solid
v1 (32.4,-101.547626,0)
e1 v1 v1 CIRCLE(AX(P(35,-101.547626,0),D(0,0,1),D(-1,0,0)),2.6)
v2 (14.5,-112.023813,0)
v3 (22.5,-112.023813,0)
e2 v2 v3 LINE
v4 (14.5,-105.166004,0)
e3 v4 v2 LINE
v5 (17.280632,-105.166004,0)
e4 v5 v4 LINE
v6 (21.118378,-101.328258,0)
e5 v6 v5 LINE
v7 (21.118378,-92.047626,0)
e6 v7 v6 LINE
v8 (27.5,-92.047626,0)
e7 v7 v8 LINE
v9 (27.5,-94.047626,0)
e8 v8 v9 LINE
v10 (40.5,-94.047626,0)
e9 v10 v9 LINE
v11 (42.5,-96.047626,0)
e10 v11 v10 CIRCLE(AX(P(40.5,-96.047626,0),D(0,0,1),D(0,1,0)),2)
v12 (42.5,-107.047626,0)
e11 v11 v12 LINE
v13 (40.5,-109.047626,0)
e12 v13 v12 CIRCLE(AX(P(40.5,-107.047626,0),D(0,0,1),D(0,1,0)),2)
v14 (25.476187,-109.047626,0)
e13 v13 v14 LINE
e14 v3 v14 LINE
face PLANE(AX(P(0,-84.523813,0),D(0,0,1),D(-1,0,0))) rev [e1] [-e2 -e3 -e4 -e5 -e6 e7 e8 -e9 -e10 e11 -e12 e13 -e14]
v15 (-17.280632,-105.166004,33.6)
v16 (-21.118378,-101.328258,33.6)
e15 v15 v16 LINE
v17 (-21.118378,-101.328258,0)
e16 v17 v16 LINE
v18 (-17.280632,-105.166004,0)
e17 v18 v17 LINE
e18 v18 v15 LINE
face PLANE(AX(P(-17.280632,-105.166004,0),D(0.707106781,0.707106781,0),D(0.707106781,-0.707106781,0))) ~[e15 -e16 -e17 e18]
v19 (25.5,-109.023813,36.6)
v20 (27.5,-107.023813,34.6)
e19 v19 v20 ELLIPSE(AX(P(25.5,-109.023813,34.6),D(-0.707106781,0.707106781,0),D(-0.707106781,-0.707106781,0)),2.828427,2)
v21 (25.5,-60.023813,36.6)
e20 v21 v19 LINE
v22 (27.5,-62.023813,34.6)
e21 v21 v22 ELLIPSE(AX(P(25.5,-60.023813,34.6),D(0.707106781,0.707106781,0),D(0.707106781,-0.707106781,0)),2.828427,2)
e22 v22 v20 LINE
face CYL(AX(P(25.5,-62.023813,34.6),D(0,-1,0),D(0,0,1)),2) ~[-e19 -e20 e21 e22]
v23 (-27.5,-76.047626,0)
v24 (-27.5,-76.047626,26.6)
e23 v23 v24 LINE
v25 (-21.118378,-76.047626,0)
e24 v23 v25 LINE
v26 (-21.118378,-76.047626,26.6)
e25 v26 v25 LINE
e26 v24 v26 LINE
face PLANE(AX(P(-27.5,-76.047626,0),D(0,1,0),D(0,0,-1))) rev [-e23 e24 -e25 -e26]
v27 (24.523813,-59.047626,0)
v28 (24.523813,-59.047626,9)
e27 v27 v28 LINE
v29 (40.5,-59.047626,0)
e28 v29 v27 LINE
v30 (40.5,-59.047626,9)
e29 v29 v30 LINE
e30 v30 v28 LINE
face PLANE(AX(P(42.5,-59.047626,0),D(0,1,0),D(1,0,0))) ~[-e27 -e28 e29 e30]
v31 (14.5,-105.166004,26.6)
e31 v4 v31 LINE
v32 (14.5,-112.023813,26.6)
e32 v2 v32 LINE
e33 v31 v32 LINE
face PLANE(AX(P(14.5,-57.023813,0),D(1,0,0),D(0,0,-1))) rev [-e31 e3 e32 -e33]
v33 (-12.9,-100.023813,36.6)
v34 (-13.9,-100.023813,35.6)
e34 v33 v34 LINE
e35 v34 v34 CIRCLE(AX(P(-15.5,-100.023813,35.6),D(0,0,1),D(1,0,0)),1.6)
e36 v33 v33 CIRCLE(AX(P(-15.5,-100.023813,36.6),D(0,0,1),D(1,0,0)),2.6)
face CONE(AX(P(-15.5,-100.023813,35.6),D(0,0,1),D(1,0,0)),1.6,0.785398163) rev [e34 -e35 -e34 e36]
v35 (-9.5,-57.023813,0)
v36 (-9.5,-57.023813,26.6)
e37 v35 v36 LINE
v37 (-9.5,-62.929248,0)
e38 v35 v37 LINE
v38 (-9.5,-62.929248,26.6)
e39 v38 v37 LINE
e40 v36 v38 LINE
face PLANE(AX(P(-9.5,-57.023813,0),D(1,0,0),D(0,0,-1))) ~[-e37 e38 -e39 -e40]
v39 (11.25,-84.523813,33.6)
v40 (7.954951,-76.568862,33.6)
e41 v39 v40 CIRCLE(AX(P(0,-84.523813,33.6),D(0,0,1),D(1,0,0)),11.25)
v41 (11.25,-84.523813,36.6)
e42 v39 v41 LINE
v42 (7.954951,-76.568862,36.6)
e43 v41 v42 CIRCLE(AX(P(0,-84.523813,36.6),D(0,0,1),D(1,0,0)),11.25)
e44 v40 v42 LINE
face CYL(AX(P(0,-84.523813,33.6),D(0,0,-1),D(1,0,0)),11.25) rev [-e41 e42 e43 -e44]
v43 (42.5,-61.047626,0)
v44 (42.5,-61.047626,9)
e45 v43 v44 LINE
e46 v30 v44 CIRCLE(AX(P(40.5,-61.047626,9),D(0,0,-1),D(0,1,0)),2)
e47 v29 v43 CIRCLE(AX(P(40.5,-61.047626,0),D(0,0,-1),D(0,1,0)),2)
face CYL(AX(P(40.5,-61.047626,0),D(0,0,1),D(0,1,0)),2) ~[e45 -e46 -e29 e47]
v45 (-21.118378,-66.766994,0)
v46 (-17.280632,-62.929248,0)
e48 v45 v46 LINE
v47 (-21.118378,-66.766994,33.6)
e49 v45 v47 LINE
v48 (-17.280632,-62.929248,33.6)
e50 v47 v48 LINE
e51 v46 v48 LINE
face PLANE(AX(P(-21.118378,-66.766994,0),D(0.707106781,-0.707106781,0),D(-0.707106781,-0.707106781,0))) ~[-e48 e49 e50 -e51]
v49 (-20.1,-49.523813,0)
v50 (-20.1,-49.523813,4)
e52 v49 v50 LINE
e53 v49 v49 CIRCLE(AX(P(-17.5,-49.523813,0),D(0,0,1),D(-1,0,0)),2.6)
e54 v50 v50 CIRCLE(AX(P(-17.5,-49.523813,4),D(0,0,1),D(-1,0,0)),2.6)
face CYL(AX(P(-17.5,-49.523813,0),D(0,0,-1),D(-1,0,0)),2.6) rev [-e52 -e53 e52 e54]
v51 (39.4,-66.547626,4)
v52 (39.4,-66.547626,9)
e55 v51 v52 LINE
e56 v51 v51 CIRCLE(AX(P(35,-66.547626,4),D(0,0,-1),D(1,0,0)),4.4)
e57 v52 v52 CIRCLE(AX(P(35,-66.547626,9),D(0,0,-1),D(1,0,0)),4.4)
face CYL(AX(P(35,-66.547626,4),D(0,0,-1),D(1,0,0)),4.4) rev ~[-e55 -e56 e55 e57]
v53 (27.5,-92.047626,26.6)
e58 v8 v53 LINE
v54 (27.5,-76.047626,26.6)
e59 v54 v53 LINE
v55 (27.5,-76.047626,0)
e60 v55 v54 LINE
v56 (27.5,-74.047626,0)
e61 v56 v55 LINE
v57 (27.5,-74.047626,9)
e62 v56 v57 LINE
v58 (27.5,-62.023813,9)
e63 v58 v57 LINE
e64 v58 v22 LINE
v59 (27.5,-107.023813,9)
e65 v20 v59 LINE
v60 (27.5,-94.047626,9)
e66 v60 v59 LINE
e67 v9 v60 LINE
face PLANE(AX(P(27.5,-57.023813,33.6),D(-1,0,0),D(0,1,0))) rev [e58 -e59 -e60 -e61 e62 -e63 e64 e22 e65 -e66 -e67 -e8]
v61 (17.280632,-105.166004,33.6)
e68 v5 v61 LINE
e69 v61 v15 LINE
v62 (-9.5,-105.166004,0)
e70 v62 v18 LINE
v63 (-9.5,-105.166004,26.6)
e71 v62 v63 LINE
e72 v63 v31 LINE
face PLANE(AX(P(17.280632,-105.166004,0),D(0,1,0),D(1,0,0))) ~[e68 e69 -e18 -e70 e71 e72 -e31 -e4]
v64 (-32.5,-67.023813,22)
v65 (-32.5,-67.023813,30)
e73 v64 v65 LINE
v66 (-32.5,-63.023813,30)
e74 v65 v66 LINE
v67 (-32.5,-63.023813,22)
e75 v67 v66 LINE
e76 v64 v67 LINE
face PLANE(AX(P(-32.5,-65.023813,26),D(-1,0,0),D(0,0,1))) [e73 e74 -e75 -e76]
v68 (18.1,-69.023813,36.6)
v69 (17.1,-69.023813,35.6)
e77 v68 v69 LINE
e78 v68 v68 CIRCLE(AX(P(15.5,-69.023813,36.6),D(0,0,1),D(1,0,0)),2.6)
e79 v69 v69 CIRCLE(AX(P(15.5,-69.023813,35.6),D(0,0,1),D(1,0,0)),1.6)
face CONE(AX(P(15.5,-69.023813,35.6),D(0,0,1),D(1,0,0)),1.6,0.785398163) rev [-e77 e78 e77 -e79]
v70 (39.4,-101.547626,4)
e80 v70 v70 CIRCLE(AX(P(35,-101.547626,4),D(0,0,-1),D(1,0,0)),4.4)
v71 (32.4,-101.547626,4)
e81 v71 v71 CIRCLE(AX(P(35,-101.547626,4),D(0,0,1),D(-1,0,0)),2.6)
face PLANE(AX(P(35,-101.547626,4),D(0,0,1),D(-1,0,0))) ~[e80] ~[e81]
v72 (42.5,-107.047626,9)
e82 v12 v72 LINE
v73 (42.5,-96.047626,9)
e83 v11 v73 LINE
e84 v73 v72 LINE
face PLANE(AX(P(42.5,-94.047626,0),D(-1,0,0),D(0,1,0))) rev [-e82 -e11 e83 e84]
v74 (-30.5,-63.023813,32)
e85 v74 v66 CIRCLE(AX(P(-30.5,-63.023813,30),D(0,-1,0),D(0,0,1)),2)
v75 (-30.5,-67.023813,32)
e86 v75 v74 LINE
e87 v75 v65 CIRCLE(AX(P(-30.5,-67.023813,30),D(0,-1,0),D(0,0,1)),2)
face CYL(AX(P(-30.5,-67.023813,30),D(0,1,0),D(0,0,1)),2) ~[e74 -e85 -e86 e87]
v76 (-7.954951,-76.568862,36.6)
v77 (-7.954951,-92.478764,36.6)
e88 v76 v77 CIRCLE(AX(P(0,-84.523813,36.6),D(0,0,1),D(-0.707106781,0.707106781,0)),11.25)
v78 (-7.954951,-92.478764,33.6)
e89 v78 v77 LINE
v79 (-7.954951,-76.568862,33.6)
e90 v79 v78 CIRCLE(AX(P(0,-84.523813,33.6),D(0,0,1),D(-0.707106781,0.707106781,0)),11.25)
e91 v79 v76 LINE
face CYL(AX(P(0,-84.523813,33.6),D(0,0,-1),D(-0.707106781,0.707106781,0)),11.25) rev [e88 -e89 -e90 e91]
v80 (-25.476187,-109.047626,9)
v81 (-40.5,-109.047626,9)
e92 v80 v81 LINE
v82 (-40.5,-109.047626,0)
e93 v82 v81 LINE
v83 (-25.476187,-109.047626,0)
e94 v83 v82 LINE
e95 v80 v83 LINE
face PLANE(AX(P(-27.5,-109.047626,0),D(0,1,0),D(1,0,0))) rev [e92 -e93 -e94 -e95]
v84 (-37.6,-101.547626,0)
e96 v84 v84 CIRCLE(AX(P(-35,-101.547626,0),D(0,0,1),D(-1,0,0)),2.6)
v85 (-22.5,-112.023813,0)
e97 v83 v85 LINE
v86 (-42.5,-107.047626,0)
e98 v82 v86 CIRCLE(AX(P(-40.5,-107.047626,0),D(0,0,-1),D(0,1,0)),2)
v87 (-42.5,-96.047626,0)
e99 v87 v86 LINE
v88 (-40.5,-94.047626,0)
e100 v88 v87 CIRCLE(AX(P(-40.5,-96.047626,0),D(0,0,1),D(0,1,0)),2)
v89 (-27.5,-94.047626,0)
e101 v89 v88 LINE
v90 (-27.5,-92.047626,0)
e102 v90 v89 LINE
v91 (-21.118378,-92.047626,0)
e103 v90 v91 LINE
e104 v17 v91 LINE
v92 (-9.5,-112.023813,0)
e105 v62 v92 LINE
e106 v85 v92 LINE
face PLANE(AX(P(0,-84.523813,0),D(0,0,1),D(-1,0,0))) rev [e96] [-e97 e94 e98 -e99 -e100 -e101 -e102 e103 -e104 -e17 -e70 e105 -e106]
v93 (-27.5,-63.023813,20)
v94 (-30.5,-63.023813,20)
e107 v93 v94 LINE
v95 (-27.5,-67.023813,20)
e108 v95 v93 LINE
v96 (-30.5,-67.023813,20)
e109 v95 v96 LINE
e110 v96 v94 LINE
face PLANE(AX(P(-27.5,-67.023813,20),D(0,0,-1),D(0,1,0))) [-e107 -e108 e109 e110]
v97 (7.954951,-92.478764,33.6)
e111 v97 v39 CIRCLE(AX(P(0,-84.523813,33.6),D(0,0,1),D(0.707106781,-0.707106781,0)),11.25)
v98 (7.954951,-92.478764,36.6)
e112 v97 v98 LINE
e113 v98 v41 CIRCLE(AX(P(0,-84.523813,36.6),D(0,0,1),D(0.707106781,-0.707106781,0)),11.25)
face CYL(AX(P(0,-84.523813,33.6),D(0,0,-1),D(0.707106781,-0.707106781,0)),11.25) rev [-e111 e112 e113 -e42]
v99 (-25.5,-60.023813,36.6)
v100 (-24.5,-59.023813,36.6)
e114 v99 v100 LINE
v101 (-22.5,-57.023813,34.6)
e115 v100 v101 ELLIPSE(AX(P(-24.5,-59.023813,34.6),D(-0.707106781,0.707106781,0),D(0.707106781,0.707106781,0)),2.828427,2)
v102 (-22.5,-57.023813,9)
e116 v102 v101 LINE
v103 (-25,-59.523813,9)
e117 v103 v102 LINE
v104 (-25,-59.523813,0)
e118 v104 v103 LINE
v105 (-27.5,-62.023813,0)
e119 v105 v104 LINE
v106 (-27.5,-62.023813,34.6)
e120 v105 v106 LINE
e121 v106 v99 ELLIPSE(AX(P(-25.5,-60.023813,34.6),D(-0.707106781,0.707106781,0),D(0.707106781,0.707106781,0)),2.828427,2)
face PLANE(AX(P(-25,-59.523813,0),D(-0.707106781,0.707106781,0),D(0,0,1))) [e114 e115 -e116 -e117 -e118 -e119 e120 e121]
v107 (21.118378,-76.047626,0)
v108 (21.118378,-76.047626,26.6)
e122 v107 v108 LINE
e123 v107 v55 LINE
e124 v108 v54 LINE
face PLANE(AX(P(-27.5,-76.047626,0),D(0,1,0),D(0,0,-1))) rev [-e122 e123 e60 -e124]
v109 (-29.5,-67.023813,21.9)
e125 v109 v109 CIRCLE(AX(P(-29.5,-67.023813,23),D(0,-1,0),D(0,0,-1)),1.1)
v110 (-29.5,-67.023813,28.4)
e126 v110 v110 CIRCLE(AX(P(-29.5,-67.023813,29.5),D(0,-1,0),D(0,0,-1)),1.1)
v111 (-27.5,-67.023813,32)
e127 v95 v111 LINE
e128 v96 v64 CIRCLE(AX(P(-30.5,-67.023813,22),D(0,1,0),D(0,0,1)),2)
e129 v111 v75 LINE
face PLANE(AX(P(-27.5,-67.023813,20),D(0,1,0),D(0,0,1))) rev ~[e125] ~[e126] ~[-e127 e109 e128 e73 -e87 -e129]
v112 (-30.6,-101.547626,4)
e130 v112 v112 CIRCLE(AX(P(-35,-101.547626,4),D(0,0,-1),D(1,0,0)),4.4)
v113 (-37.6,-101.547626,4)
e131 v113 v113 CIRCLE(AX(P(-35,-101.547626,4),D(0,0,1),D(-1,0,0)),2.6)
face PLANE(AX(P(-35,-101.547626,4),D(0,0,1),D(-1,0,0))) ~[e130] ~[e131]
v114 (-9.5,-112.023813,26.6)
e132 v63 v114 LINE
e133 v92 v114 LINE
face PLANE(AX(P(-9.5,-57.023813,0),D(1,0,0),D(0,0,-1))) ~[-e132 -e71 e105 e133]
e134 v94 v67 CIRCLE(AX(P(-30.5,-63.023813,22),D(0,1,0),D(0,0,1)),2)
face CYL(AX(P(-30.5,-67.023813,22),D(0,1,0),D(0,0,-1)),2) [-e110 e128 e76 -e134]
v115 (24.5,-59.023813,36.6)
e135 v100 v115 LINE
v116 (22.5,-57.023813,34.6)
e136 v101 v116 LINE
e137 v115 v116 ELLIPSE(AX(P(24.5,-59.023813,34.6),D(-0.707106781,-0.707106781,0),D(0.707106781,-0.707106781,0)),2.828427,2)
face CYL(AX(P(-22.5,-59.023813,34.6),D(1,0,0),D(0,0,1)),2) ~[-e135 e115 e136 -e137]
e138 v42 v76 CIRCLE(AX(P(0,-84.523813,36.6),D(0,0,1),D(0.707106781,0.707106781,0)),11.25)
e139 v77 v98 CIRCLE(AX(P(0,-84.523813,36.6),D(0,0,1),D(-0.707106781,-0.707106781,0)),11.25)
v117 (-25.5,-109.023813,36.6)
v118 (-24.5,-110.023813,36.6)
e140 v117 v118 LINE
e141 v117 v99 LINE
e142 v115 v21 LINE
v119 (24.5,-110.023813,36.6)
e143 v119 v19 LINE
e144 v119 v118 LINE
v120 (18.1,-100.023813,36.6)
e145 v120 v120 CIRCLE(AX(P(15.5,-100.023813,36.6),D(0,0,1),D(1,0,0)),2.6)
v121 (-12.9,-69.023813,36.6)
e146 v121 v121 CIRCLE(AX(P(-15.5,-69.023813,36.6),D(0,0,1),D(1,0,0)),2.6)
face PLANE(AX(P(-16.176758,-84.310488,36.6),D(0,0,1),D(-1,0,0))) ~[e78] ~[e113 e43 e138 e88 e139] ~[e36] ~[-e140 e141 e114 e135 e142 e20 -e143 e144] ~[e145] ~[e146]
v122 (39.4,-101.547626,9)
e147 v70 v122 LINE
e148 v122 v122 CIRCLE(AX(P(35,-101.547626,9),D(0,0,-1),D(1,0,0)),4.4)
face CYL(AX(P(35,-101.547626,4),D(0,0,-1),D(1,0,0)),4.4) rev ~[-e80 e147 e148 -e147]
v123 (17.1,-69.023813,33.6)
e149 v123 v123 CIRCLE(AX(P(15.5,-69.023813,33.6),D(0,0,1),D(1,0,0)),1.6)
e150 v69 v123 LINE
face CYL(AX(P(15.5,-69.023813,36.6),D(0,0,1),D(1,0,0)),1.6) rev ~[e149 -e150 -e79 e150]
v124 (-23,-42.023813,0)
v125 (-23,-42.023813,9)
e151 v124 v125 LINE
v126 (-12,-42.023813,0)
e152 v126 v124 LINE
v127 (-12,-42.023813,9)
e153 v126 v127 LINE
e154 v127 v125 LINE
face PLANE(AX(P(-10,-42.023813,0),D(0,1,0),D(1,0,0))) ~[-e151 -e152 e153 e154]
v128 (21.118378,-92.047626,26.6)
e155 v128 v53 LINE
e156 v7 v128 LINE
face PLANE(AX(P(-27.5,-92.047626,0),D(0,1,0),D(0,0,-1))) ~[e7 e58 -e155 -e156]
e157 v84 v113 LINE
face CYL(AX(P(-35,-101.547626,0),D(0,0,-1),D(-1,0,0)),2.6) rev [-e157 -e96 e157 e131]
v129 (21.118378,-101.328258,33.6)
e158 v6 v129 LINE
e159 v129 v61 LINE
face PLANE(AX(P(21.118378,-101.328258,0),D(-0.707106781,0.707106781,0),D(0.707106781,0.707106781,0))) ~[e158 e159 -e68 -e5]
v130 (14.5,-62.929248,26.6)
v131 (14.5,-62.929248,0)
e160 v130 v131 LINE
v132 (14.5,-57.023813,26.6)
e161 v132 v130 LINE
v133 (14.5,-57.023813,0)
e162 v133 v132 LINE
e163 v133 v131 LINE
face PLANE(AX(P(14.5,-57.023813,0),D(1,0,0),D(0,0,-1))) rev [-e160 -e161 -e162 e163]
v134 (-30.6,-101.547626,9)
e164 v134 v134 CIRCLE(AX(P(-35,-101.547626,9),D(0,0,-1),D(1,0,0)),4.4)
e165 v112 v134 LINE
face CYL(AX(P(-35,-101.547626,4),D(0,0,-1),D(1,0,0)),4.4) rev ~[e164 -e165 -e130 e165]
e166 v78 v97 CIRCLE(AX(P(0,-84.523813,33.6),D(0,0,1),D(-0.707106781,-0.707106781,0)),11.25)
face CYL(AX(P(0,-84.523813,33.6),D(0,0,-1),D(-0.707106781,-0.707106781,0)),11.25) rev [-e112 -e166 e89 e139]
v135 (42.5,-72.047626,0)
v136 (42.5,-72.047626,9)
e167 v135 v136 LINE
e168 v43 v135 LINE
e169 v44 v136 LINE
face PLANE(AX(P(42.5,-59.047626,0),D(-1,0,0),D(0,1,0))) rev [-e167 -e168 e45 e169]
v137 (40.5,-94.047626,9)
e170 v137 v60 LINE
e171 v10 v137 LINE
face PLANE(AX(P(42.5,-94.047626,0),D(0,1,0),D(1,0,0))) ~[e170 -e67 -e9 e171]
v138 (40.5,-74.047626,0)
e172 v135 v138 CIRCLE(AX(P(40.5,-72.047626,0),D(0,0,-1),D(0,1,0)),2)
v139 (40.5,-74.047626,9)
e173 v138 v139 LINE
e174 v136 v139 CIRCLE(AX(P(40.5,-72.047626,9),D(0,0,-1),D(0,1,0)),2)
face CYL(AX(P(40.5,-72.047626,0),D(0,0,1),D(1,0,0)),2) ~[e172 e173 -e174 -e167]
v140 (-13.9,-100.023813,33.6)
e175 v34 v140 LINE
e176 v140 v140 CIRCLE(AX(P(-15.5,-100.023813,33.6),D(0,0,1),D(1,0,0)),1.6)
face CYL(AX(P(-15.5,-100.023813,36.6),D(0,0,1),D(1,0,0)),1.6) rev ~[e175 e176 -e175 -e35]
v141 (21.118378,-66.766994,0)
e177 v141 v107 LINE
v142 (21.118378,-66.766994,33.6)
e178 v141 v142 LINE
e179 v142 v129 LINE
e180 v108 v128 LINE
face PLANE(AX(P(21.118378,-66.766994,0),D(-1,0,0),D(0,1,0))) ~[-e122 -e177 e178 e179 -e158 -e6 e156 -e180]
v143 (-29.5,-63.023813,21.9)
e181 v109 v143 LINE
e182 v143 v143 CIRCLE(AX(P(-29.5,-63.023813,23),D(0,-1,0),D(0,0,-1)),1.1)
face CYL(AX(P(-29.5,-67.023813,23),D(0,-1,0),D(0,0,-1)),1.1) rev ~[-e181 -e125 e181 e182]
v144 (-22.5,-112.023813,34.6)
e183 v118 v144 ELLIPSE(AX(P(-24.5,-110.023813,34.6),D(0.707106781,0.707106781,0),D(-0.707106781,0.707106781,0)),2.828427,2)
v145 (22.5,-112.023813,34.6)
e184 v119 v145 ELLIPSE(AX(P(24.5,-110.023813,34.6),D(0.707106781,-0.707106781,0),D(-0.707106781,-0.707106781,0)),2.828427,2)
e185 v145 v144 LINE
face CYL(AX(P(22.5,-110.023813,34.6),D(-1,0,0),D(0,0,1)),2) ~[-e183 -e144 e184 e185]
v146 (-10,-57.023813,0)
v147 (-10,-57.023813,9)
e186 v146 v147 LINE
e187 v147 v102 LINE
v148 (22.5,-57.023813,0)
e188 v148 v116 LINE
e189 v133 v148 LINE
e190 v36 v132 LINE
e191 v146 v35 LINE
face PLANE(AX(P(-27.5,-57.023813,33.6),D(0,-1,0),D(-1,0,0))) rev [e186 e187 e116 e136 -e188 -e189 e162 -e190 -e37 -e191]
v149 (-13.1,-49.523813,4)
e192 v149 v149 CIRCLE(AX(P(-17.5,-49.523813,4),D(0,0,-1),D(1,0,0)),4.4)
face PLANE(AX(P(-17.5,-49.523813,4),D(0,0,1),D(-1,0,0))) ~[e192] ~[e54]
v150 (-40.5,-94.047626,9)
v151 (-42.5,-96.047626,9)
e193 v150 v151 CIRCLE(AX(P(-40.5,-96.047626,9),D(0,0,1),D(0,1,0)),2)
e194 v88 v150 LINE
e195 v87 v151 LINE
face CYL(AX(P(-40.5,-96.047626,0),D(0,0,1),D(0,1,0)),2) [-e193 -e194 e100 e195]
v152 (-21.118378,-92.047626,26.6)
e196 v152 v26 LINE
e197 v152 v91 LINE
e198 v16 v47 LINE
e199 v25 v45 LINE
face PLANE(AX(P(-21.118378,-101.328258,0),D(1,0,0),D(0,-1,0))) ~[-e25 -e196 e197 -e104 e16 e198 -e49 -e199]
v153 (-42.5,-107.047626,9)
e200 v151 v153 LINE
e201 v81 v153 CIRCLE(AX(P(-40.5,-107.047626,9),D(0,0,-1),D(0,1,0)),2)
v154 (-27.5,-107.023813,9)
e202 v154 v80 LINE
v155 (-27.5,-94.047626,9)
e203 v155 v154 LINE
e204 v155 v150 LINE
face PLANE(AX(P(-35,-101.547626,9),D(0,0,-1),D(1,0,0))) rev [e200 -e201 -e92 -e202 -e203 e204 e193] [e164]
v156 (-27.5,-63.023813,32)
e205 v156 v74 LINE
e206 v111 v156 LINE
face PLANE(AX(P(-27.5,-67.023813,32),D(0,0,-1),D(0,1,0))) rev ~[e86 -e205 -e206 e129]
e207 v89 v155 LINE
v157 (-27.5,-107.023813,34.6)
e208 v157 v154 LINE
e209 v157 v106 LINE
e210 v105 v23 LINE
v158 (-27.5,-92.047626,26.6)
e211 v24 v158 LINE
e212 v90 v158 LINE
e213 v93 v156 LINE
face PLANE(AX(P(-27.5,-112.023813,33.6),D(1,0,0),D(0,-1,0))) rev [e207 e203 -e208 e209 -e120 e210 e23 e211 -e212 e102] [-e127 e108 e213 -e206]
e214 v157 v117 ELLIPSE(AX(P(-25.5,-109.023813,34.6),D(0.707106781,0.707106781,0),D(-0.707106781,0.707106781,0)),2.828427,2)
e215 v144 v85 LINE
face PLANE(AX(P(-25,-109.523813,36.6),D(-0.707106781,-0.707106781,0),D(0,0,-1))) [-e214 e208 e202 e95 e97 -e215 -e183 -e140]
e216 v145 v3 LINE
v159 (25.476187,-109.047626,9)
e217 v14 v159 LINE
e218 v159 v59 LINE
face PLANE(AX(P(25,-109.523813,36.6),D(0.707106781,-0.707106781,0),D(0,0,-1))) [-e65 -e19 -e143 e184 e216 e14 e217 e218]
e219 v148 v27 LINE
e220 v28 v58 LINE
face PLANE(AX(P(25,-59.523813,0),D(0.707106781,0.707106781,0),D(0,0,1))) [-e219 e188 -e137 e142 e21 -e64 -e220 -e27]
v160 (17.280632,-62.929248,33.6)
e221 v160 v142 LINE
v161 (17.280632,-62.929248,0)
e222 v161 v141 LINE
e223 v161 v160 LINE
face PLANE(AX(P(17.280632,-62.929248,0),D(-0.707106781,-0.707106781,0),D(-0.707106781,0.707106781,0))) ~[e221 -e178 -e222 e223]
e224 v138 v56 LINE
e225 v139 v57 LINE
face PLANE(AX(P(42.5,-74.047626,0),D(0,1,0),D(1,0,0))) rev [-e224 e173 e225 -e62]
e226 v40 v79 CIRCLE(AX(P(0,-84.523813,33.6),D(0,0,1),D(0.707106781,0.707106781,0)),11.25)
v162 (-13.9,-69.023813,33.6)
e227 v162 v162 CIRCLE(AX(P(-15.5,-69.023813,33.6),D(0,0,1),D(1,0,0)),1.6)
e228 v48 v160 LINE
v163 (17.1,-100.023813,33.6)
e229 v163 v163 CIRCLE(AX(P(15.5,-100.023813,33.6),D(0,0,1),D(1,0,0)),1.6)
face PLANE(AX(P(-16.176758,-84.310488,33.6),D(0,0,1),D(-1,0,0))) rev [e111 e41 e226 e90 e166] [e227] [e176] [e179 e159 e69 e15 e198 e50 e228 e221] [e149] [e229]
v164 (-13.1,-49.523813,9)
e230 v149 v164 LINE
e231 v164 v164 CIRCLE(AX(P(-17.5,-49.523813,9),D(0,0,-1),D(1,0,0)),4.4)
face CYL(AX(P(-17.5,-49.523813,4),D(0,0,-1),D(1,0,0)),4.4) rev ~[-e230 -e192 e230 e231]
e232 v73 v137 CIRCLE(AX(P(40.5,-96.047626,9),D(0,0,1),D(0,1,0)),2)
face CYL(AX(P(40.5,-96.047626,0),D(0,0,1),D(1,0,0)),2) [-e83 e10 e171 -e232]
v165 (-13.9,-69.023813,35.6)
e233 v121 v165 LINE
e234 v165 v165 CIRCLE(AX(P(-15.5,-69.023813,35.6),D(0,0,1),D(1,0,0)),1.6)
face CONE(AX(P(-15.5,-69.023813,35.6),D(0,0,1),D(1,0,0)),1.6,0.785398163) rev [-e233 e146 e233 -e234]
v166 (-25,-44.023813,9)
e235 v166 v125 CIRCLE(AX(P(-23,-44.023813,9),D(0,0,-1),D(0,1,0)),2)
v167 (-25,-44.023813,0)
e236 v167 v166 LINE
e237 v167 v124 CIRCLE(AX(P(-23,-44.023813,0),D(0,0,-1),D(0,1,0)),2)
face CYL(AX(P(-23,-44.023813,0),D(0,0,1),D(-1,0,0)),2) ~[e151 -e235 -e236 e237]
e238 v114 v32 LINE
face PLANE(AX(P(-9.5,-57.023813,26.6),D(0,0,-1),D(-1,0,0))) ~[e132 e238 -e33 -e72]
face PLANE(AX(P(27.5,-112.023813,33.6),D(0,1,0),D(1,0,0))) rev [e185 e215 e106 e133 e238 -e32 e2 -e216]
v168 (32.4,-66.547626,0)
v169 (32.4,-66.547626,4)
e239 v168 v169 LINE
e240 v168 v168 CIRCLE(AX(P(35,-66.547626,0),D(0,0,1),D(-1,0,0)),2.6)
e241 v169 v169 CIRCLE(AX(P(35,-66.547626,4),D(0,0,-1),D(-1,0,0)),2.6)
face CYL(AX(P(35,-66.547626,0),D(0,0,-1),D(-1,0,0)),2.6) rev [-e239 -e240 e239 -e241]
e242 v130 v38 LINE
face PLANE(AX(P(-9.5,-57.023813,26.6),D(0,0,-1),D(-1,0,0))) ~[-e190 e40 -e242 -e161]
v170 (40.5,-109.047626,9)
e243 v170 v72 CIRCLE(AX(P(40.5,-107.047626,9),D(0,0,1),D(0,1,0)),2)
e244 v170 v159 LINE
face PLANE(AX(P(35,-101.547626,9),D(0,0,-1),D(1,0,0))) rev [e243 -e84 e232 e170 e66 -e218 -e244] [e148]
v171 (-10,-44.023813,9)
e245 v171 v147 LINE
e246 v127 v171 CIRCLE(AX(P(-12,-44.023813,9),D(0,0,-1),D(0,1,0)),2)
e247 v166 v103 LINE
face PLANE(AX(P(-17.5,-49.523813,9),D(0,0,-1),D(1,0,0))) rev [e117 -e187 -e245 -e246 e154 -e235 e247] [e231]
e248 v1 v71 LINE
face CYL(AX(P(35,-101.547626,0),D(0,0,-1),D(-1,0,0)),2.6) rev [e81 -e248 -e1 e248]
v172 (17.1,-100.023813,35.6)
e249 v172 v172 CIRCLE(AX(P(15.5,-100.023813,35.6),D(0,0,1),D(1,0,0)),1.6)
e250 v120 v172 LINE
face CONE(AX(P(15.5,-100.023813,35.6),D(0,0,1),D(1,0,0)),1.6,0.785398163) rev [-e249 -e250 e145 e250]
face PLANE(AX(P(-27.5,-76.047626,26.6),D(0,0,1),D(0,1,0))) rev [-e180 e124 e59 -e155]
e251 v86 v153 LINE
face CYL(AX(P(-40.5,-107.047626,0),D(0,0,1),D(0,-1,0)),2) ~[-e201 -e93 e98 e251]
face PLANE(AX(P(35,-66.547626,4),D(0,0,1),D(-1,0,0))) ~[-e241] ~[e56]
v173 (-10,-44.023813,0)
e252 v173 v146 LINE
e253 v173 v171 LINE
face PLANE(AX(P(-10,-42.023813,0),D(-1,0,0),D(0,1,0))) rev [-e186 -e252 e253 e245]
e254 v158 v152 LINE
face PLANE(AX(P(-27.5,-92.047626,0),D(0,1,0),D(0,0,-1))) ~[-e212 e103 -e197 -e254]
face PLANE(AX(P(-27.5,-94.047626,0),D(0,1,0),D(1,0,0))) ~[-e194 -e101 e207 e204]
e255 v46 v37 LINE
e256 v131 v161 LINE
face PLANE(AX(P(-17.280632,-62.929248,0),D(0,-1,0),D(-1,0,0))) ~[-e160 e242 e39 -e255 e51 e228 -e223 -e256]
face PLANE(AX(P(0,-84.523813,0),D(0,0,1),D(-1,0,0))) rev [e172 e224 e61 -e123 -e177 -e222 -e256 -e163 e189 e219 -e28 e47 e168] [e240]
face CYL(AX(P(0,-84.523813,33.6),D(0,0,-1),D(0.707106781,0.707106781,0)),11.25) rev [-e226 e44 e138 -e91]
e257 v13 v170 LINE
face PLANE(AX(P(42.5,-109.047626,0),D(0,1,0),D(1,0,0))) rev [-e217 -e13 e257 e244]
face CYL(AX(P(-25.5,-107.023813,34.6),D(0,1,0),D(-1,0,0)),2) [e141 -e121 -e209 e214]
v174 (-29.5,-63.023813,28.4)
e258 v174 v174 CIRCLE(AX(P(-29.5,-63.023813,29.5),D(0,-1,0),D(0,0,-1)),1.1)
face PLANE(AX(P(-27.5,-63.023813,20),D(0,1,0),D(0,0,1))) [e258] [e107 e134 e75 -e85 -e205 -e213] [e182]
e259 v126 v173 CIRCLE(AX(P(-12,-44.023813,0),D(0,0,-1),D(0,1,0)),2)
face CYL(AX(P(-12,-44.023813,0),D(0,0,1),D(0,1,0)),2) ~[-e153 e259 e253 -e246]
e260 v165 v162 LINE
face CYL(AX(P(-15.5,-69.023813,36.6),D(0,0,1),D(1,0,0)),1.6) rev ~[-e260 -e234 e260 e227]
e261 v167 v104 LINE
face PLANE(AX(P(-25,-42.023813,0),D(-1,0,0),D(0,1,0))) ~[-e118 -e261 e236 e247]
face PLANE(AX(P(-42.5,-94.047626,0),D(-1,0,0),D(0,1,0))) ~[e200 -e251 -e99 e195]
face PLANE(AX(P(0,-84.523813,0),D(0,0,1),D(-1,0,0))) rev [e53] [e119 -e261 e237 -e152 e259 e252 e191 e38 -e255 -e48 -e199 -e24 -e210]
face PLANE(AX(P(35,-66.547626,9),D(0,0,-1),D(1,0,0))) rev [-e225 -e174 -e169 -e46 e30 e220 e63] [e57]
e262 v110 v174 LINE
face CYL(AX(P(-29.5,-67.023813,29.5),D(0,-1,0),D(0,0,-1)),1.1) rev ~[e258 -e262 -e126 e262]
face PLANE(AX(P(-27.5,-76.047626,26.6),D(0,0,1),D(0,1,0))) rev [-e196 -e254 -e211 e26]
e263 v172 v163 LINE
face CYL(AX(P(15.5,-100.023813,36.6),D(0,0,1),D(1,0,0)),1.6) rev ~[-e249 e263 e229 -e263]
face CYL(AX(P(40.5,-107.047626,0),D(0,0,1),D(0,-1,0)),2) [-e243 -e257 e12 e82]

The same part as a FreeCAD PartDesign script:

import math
import FreeCAD as App
import Part
import Sketcher
from FreeCAD import Vector


def edges_at(feature, points):
    """Names of the edges that pass closest to the given points."""
    edges = feature.Shape.Edges
    near = lambda p: min(range(len(edges)), key=lambda i: edges[i].distToShape(Part.Vertex(*p))[0])
    return sorted({f"Edge{near(p) + 1}" for p in points})


def add_polygon(sketch, points):
    """Adds a closed chain of lines whose ends are joined by coincident constraints."""
    first, n = sketch.GeometryCount, len(points)
    for a, b in zip(points, points[1:] + points[:1]):
        sketch.addGeometry(Part.LineSegment(App.Vector(*a, 0), App.Vector(*b, 0)), False)
    for i in range(n):
        sketch.addConstraint(Sketcher.Constraint("Coincident", first + i, 2, first + (i + 1) % n, 1))

doc = App.newDocument("Part")
params = doc.addObject("Spreadsheet::Sheet", "Params")
for row, (alias, value) in enumerate([
    ("sketch1_width", "55 mm"),
    ("pad1_length", "33.6 mm"),
    ("sketch2_width", "55 mm"),
    ("sketch2_radius", "11.25 mm"),
    ("pad2_length", "3 mm"),
    ("sketch3_diameter", "5.2 mm"),
    ("sketch3_width", "15 mm"),
    ("pad3_length", "9 mm"),
    ("sketch4_diameter", "8.8 mm"),
    ("sketch4_diameter2", "5.2 mm"),
    ("pocket1_length", "5 mm"),
    ("chamfer_size", "5 mm"),
    ("fillet_radius", "2 mm"),
    ("sketch5_width", "24 mm"),
    ("sketch5_height", "26.6 mm"),
    ("pocket2_length", "67 mm"),
    ("sketch6_width", "16 mm"),
    ("sketch6_height", "26.6 mm"),
    ("pocket3_length", "67 mm"),
    ("sketch7_width", "4 mm"),
    ("sketch7_height", "12 mm"),
    ("pad4_length", "5 mm"),
    ("sketch8_diameter", "2.2 mm"),
    ("pocket4_length", "4 mm"),
    ("fillet2_radius", "2 mm"),
    ("sketch9_diameter", "3.2 mm"),
    ("pocket5_length", "10 mm"),
    ("chamfer2_size", "1 mm"),
], start=1):
    params.set(f"A{row}", alias)
    params.set(f"B{row}", "=" + value)
    params.setAlias(f"B{row}", alias)

body = doc.addObject("PartDesign::Body", "Body")

sketch1 = body.newObject("Sketcher::SketchObject", "Sketch")
sketch1.AttachmentSupport = (doc.getObject("XY_Plane"), [""])
sketch1.MapMode = "FlatFace"
add_polygon(sketch1, [(-28, 28), (-28, -27), (28, -27), (28, 28)])
add_polygon(sketch1, [(21, 17), (21, -17), (17, -21), (-17, -21), (-21, -17), (-21, 17), (-17, 21), (17, 21)])
sketch1.addConstraint(Sketcher.Constraint("Vertical", 0))
sketch1.addConstraint(Sketcher.Constraint("Horizontal", 1))
sketch1.addConstraint(Sketcher.Constraint("Vertical", 2))
sketch1.addConstraint(Sketcher.Constraint("Horizontal", 3))
sketch1.addConstraint(Sketcher.Constraint("Vertical", 4))
sketch1.addConstraint(Sketcher.Constraint("Horizontal", 6))
sketch1.addConstraint(Sketcher.Constraint("Vertical", 8))
sketch1.addConstraint(Sketcher.Constraint("Horizontal", 10))
sketch1.addConstraint(Sketcher.Constraint("Symmetric", 4, 2, 8, 2, -1, 1))
sketch1.addConstraint(Sketcher.Constraint("Symmetric", 5, 2, 9, 2, -1, 1))
sketch1.addConstraint(Sketcher.Constraint("Perpendicular", 5, 7))
sketch1.addConstraint(Sketcher.Constraint("Perpendicular", 9, 11))
sketch1.addConstraint(Sketcher.Constraint("Horizontal", 4, 2, 7, 2))
sketch1.addConstraint(Sketcher.Constraint("Horizontal", 8, 2, 11, 2))
sketch1.addConstraint(Sketcher.Constraint("Vertical", 6, 2, 9, 2))
sketch1.addConstraint(Sketcher.Constraint("Equal", 3, 0))
sketch1.addConstraint(Sketcher.Constraint("Equal", 10, 4))
sketch1.addConstraint(Sketcher.Constraint("DistanceX", 1, 1, 1, 2, 55.0))
sketch1.addConstraint(Sketcher.Constraint("DistanceX", 0, 2, -1, 1, 27.5))
sketch1.addConstraint(Sketcher.Constraint("DistanceX", 6, 2, 6, 1, 34.561264))
sketch1.addConstraint(Sketcher.Constraint("DistanceY", 1, 2, 4, 2, 9.743181))
sketch1.addConstraint(Sketcher.Constraint("DistanceX", 6, 2, 4, 2, 38.39901))
sketch1.setExpression("Constraints[29]", "Params.sketch1_width")
pad1 = body.newObject("PartDesign::Pad", "Pad")
pad1.Profile = sketch1
pad1.setExpression("Length", "Params.pad1_length")

sketch2 = body.newObject("Sketcher::SketchObject", "Sketch001")
sketch2.AttachmentSupport = (doc.getObject("XY_Plane"), [""])
sketch2.MapMode = "FlatFace"
sketch2.AttachmentOffset = App.Placement(Vector(0, 0, 33.6), App.Rotation())
add_polygon(sketch2, [(-28, 28), (-28, -27), (28, -27), (28, 28)])
sketch2.addGeometry(Part.ArcOfCircle(Part.Circle(Vector(0, 0, 0), Vector(0, 0, 1), 11), math.radians(0), math.radians(45)), False)
sketch2.addGeometry(Part.ArcOfCircle(Part.Circle(Vector(0, 0, 0), Vector(0, 0, 1), 11), math.radians(-45), math.radians(0)), False)
sketch2.addGeometry(Part.ArcOfCircle(Part.Circle(Vector(0, 0, 0), Vector(0, 0, 1), 11), math.radians(-135), math.radians(-45)), False)
sketch2.addGeometry(Part.ArcOfCircle(Part.Circle(Vector(0, 0, 0), Vector(0, 0, 1), 11), math.radians(135), math.radians(225)), False)
sketch2.addGeometry(Part.ArcOfCircle(Part.Circle(Vector(0, 0, 0), Vector(0, 0, 1), 11), math.radians(45), math.radians(135)), False)
sketch2.addConstraint(Sketcher.Constraint("Tangent", 4, 1, 5, 2))
sketch2.addConstraint(Sketcher.Constraint("Tangent", 5, 1, 6, 2))
sketch2.addConstraint(Sketcher.Constraint("Tangent", 6, 1, 7, 2))
sketch2.addConstraint(Sketcher.Constraint("Tangent", 7, 1, 8, 2))
sketch2.addConstraint(Sketcher.Constraint("Tangent", 8, 1, 4, 2))
sketch2.addConstraint(Sketcher.Constraint("Vertical", 0))
sketch2.addConstraint(Sketcher.Constraint("Horizontal", 1))
sketch2.addConstraint(Sketcher.Constraint("Vertical", 2))
sketch2.addConstraint(Sketcher.Constraint("Horizontal", 3))
sketch2.addConstraint(Sketcher.Constraint("Coincident", 6, 3, 4, 3))
sketch2.addConstraint(Sketcher.Constraint("Symmetric", 5, 1, 6, 1, -2))
sketch2.addConstraint(Sketcher.Constraint("Horizontal", 8, 3, 4, 1))
sketch2.addConstraint(Sketcher.Constraint("Horizontal", 7, 1, 8, 1))
sketch2.addConstraint(Sketcher.Constraint("Vertical", 6, 1, 7, 1))
sketch2.addConstraint(Sketcher.Constraint("Equal", 3, 0))
sketch2.addConstraint(Sketcher.Constraint("DistanceX", 1, 1, 1, 2, 55.0))
sketch2.addConstraint(Sketcher.Constraint("Radius", 4, 11.25))
sketch2.addConstraint(Sketcher.Constraint("DistanceX", 0, 2, -1, 1, 27.5))
sketch2.addConstraint(Sketcher.Constraint("DistanceY", 0, 2, 6, 3, 27.5))
sketch2.addConstraint(Sketcher.Constraint("DistanceX", -1, 1, 5, 1, 7.954951))
sketch2.addConstraint(Sketcher.Constraint("DistanceY", -1, 1, 7, 1, 8.431138))
sketch2.setExpression("Constraints[19]", "Params.sketch2_width")
sketch2.setExpression("Constraints[20]", "Params.sketch2_radius")
pad2 = body.newObject("PartDesign::Pad", "Pad001")
pad2.Profile = sketch2
pad2.setExpression("Length", "Params.pad2_length")

sketch3 = body.newObject("Sketcher::SketchObject", "Sketch002")
sketch3.AttachmentSupport = (doc.getObject("XY_Plane"), [""])
sketch3.MapMode = "FlatFace"
add_polygon(sketch3, [(42.5, 25), (42.5, 10), (27.5, 10), (27.5, 25)])
sketch3.addGeometry(Part.Circle(Vector(35, 17.5, 0), Vector(0, 0, 1), 2.6), False)
add_polygon(sketch3, [(-27.5, 25), (-27.5, 10), (-42.5, 10), (-42.5, 25)])
sketch3.addGeometry(Part.Circle(Vector(-35, 17.5, 0), Vector(0, 0, 1), 2.6), False)
add_polygon(sketch3, [(42.5, -10), (42.5, -25), (27.5, -25), (27.5, -10)])
sketch3.addGeometry(Part.Circle(Vector(35, -17.5, 0), Vector(0, 0, 1), 2.6), False)
add_polygon(sketch3, [(-10, -27), (-10, -42), (-25, -42), (-25, -27)])
sketch3.addGeometry(Part.Circle(Vector(-17.5, -34.5, 0), Vector(0, 0, 1), 2.6), False)
sketch3.addConstraint(Sketcher.Constraint("Vertical", 0))
sketch3.addConstraint(Sketcher.Constraint("Horizontal", 1))
sketch3.addConstraint(Sketcher.Constraint("Vertical", 2))
sketch3.addConstraint(Sketcher.Constraint("Horizontal", 3))
sketch3.addConstraint(Sketcher.Constraint("Vertical", 5))
sketch3.addConstraint(Sketcher.Constraint("Horizontal", 6))
sketch3.addConstraint(Sketcher.Constraint("Vertical", 7))
sketch3.addConstraint(Sketcher.Constraint("Horizontal", 8))
sketch3.addConstraint(Sketcher.Constraint("Vertical", 10))
sketch3.addConstraint(Sketcher.Constraint("Horizontal", 11))
sketch3.addConstraint(Sketcher.Constraint("Vertical", 12))
sketch3.addConstraint(Sketcher.Constraint("Horizontal", 13))
sketch3.addConstraint(Sketcher.Constraint("Vertical", 15))
sketch3.addConstraint(Sketcher.Constraint("Horizontal", 16))
sketch3.addConstraint(Sketcher.Constraint("Vertical", 17))
sketch3.addConstraint(Sketcher.Constraint("Horizontal", 18))
sketch3.addConstraint(Sketcher.Constraint("Equal", 4, 9))
sketch3.addConstraint(Sketcher.Constraint("Equal", 9, 14))
sketch3.addConstraint(Sketcher.Constraint("Equal", 14, 19))
sketch3.addConstraint(Sketcher.Constraint("Symmetric", 9, 3, 14, 3, -1, 1))
sketch3.addConstraint(Sketcher.Constraint("Symmetric", 7, 2, 10, 2, -1, 1))
sketch3.addConstraint(Sketcher.Constraint("Symmetric", 5, 2, 12, 2, -1, 1))
sketch3.addConstraint(Sketcher.Constraint("Symmetric", 4, 3, 9, 3, -2))
sketch3.addConstraint(Sketcher.Constraint("Symmetric", 1, 2, 5, 2, -2))
sketch3.addConstraint(Sketcher.Constraint("Symmetric", 3, 2, 7, 2, -2))
sketch3.addConstraint(Sketcher.Constraint("Equal", 13, 16))
sketch3.addConstraint(Sketcher.Constraint("Equal", 18, 0))
sketch3.addConstraint(Sketcher.Constraint("Equal", 12, 15))
sketch3.addConstraint(Sketcher.Constraint("Diameter", 4, 5.2))
sketch3.addConstraint(Sketcher.Constraint("DistanceX", 1, 2, 1, 1, 15.0))
sketch3.addConstraint(Sketcher.Constraint("DistanceX", -1, 1, 4, 3, 35.0))
sketch3.addConstraint(Sketcher.Constraint("DistanceY", -1, 1, 0, 2, 10.0))
sketch3.addConstraint(Sketcher.Constraint("DistanceX", 15, 2, -1, 1, 10.0))
sketch3.addConstraint(Sketcher.Constraint("DistanceY", 14, 3, 4, 3, 35.0))
sketch3.addConstraint(Sketcher.Constraint("DistanceX", 19, 3, 0, 2, 60.0))
sketch3.addConstraint(Sketcher.Constraint("DistanceX", 5, 2, 19, 3, 10.0))
sketch3.addConstraint(Sketcher.Constraint("DistanceY", 15, 2, 19, 3, 7.5))
sketch3.addConstraint(Sketcher.Constraint("DistanceY", 19, 3, -1, 1, 34.523813))
sketch3.setExpression("Constraints[44]", "Params.sketch3_diameter")
sketch3.setExpression("Constraints[45]", "Params.sketch3_width")
pad3 = body.newObject("PartDesign::Pad", "Pad002")
pad3.Profile = sketch3
pad3.setExpression("Length", "Params.pad3_length")

sketch4 = body.newObject("Sketcher::SketchObject", "Sketch003")
sketch4.AttachmentSupport = (doc.getObject("XY_Plane"), [""])
sketch4.MapMode = "FlatFace"
sketch4.AttachmentOffset = App.Placement(Vector(0, 0, 4), App.Rotation())
sketch4.addGeometry(Part.Circle(Vector(-17.5, -34.5, 0), Vector(0, 0, 1), 4.4), False)
sketch4.addGeometry(Part.Circle(Vector(-35, 17.5, 0), Vector(0, 0, 1), 4.4), False)
sketch4.addGeometry(Part.Circle(Vector(35, -17.5, 0), Vector(0, 0, 1), 4.4), False)
sketch4.addGeometry(Part.Circle(Vector(35, -17.5, 0), Vector(0, 0, 1), 2.6), False)
sketch4.addGeometry(Part.Circle(Vector(35, 17.5, 0), Vector(0, 0, 1), 4.4), False)
sketch4.addConstraint(Sketcher.Constraint("Coincident", 3, 3, 2, 3))
sketch4.addConstraint(Sketcher.Constraint("Equal", 0, 1))
sketch4.addConstraint(Sketcher.Constraint("Equal", 1, 2))
sketch4.addConstraint(Sketcher.Constraint("Equal", 2, 4))
sketch4.addConstraint(Sketcher.Constraint("Symmetric", 1, 3, 2, 3, -1, 1))
sketch4.addConstraint(Sketcher.Constraint("Symmetric", 1, 3, 4, 3, -2))
sketch4.addConstraint(Sketcher.Constraint("Diameter", 0, 8.8))
sketch4.addConstraint(Sketcher.Constraint("Diameter", 3, 5.2))
sketch4.addConstraint(Sketcher.Constraint("DistanceX", 1, 3, -1, 1, 35.0))
sketch4.addConstraint(Sketcher.Constraint("DistanceY", 2, 3, 1, 3, 35.0))
sketch4.addConstraint(Sketcher.Constraint("DistanceX", 0, 3, -1, 1, 17.5))
sketch4.addConstraint(Sketcher.Constraint("DistanceY", 0, 3, -1, 1, 34.523813))
sketch4.setExpression("Constraints[6]", "Params.sketch4_diameter")
sketch4.setExpression("Constraints[7]", "Params.sketch4_diameter2")
pocket1 = body.newObject("PartDesign::Pocket", "Pocket")
pocket1.Profile = sketch4
pocket1.setExpression("Length", "Params.pocket1_length")
pocket1.Reversed = True
doc.recompute()

chamfer = body.newObject("PartDesign::Chamfer", "Chamfer")
chamfer.Base = (pocket1, edges_at(pocket1, [
    (27.5, -27.024, 18.3),
    (-27.5, -27.024, 18.3),
    (27.5, 27.976, 18.3),
    (-27.5, 27.976, 18.3),
]))
chamfer.setExpression("Size", "Params.chamfer_size")
doc.recompute()

fillet = body.newObject("PartDesign::Fillet", "Fillet")
fillet.Base = (chamfer, edges_at(chamfer, [
    (0, 27.976, 36.6),
    (27.5, 0.476, 36.6),
    (0, -27.024, 36.6),
    (-27.5, 0.476, 36.6),
    (-25, -42.024, 4.5),
    (-10, -42.024, 4.5),
    (-42.5, 10, 4.5),
    (-42.5, 25, 4.5),
    (42.5, -25, 4.5),
    (42.5, -10, 4.5),
    (42.5, 10, 4.5),
    (42.5, 25, 4.5),
]))
fillet.setExpression("Radius", "Params.fillet_radius")

sketch5 = body.newObject("Sketcher::SketchObject", "Sketch004")
sketch5.AttachmentSupport = (doc.getObject("XZ_Plane"), [""])
sketch5.MapMode = "FlatFace"
sketch5.AttachmentOffset = App.Placement(Vector(0, 0, 27.023813), App.Rotation())
add_polygon(sketch5, [(-10, 27), (-10, 0), (14, 0), (14, 27)])
sketch5.addConstraint(Sketcher.Constraint("Vertical", 0))
sketch5.addConstraint(Sketcher.Constraint("Horizontal", 1))
sketch5.addConstraint(Sketcher.Constraint("Vertical", 2))
sketch5.addConstraint(Sketcher.Constraint("Horizontal", 3))
sketch5.addConstraint(Sketcher.Constraint("PointOnObject", 0, 2, -1))
sketch5.addConstraint(Sketcher.Constraint("DistanceX", 1, 1, 1, 2, 24.0))
sketch5.addConstraint(Sketcher.Constraint("DistanceY", 0, 2, 0, 1, 26.6))
sketch5.addConstraint(Sketcher.Constraint("DistanceX", 0, 2, -1, 1, 9.5))
sketch5.setExpression("Constraints[9]", "Params.sketch5_width")
sketch5.setExpression("Constraints[10]", "Params.sketch5_height")
pocket2 = body.newObject("PartDesign::Pocket", "Pocket001")
pocket2.Profile = sketch5
pocket2.setExpression("Length", "Params.pocket2_length")

sketch6 = body.newObject("Sketcher::SketchObject", "Sketch005")
sketch6.AttachmentSupport = (doc.getObject("YZ_Plane"), [""])
sketch6.MapMode = "FlatFace"
sketch6.AttachmentOffset = App.Placement(Vector(0, 0, -27.5), App.Rotation())
add_polygon(sketch6, [(8, 0), (-8, 0), (-8, 27), (8, 27)])
sketch6.addConstraint(Sketcher.Constraint("Horizontal", 0))
sketch6.addConstraint(Sketcher.Constraint("Vertical", 1))
sketch6.addConstraint(Sketcher.Constraint("Horizontal", 2))
sketch6.addConstraint(Sketcher.Constraint("Vertical", 3))
sketch6.addConstraint(Sketcher.Constraint("Symmetric", 0, 2, 3, 2, -1, 1))
sketch6.addConstraint(Sketcher.Constraint("DistanceX", 0, 2, 0, 1, 16.0))
sketch6.addConstraint(Sketcher.Constraint("DistanceY", 1, 1, 1, 2, 26.6))
sketch6.setExpression("Constraints[9]", "Params.sketch6_width")
sketch6.setExpression("Constraints[10]", "Params.sketch6_height")
pocket3 = body.newObject("PartDesign::Pocket", "Pocket002")
pocket3.Profile = sketch6
pocket3.setExpression("Length", "Params.pocket3_length")
pocket3.Reversed = True
body2 = doc.addObject("PartDesign::Body", "Body001")
doc.recompute()

mirroring = doc.addObject("Part::Mirroring", "Mirroring")
mirroring.Source = body
mirroring.Base = Vector(-25, -42.023813, 9)
mirroring.Normal = Vector(0, 1, 0)
body2.BaseFeature = mirroring
doc.recompute()

sketch7 = body2.newObject("Sketcher::SketchObject", "Sketch006")
sketch7.AttachmentSupport = (doc.getObject("YZ_Plane001"), [""])
sketch7.MapMode = "FlatFace"
sketch7.AttachmentOffset = App.Placement(Vector(0, 0, -27.5), App.Rotation())
add_polygon(sketch7, [(-63, 20), (-67, 20), (-67, 32), (-63, 32)])
sketch7.addConstraint(Sketcher.Constraint("Horizontal", 0))
sketch7.addConstraint(Sketcher.Constraint("Vertical", 1))
sketch7.addConstraint(Sketcher.Constraint("Horizontal", 2))
sketch7.addConstraint(Sketcher.Constraint("Vertical", 3))
sketch7.addConstraint(Sketcher.Constraint("DistanceX", 0, 2, 0, 1, 4.0))
sketch7.addConstraint(Sketcher.Constraint("DistanceY", 1, 1, 1, 2, 12.0))
sketch7.addConstraint(Sketcher.Constraint("DistanceY", -1, 1, 0, 2, 20.0))
sketch7.addConstraint(Sketcher.Constraint("DistanceX", 0, 2, -1, 1, 67.023813))
sketch7.setExpression("Constraints[8]", "Params.sketch7_width")
sketch7.setExpression("Constraints[9]", "Params.sketch7_height")
pad4 = body2.newObject("PartDesign::Pad", "Pad003")
pad4.Profile = sketch7
pad4.setExpression("Length", "Params.pad4_length")
pad4.Reversed = True

sketch8 = body2.newObject("Sketcher::SketchObject", "Sketch007")
sketch8.AttachmentSupport = (doc.getObject("XZ_Plane001"), [""])
sketch8.MapMode = "FlatFace"
sketch8.AttachmentOffset = App.Placement(Vector(0, 0, 67.023813), App.Rotation())
sketch8.addGeometry(Part.Circle(Vector(-29.5, 29.5, 0), Vector(0, 0, 1), 1.1), False)
sketch8.addGeometry(Part.Circle(Vector(-29.5, 23, 0), Vector(0, 0, 1), 1.1), False)
sketch8.addConstraint(Sketcher.Constraint("Equal", 0, 1))
sketch8.addConstraint(Sketcher.Constraint("Vertical", 0, 3, 1, 3))
sketch8.addConstraint(Sketcher.Constraint("Diameter", 0, 2.2))
sketch8.addConstraint(Sketcher.Constraint("DistanceY", -1, 1, 1, 3, 23.0))
sketch8.addConstraint(Sketcher.Constraint("DistanceX", 0, 3, -1, 1, 29.5))
sketch8.addConstraint(Sketcher.Constraint("DistanceY", -1, 1, 0, 3, 29.5))
sketch8.setExpression("Constraints[2]", "Params.sketch8_diameter")
pocket4 = body2.newObject("PartDesign::Pocket", "Pocket003")
pocket4.Profile = sketch8
pocket4.setExpression("Length", "Params.pocket4_length")
doc.recompute()

fillet2 = body2.newObject("PartDesign::Fillet", "Fillet001")
fillet2.Base = (pocket4, edges_at(pocket4, [(-32.5, -65.024, 32), (-32.5, -65.024, 20)]))
fillet2.setExpression("Radius", "Params.fillet2_radius")

sketch9 = body2.newObject("Sketcher::SketchObject", "Sketch008")
sketch9.AttachmentSupport = (doc.getObject("XY_Plane001"), [""])
sketch9.MapMode = "FlatFace"
sketch9.AttachmentOffset = App.Placement(Vector(0, 0, 36.6), App.Rotation())
sketch9.addGeometry(Part.Circle(Vector(15.5, -100, 0), Vector(0, 0, 1), 1.6), False)
sketch9.addGeometry(Part.Circle(Vector(-15.5, -100, 0), Vector(0, 0, 1), 1.6), False)
sketch9.addGeometry(Part.Circle(Vector(-15.5, -69, 0), Vector(0, 0, 1), 1.6), False)
sketch9.addGeometry(Part.Circle(Vector(15.5, -69, 0), Vector(0, 0, 1), 1.6), False)
sketch9.addConstraint(Sketcher.Constraint("Equal", 0, 1))
sketch9.addConstraint(Sketcher.Constraint("Equal", 1, 2))
sketch9.addConstraint(Sketcher.Constraint("Equal", 2, 3))
sketch9.addConstraint(Sketcher.Constraint("Symmetric", 0, 3, 1, 3, -2))
sketch9.addConstraint(Sketcher.Constraint("Symmetric", 2, 3, 3, 3, -2))
sketch9.addConstraint(Sketcher.Constraint("Vertical", 1, 3, 2, 3))
sketch9.addConstraint(Sketcher.Constraint("Diameter", 0, 3.2))
sketch9.addConstraint(Sketcher.Constraint("DistanceX", 1, 3, 0, 3, 31.0))
sketch9.addConstraint(Sketcher.Constraint("DistanceY", 1, 3, 2, 3, 31.0))
sketch9.addConstraint(Sketcher.Constraint("DistanceY", 0, 3, -1, 1, 100.023813))
sketch9.setExpression("Constraints[6]", "Params.sketch9_diameter")
pocket5 = body2.newObject("PartDesign::Pocket", "Pocket004")
pocket5.Profile = sketch9
pocket5.setExpression("Length", "Params.pocket5_length")
doc.recompute()

chamfer2 = body2.newObject("PartDesign::Chamfer", "Chamfer001")
chamfer2.Base = (pocket5, edges_at(pocket5, [
    (13.9, -69.024, 36.6),
    (-17.1, -69.024, 36.6),
    (-17.1, -100.024, 36.6),
    (13.9, -100.024, 36.6),
]))
chamfer2.setExpression("Size", "Params.chamfer2_size")
body.Visibility = False
mirroring.Visibility = False

doc.recompute()
